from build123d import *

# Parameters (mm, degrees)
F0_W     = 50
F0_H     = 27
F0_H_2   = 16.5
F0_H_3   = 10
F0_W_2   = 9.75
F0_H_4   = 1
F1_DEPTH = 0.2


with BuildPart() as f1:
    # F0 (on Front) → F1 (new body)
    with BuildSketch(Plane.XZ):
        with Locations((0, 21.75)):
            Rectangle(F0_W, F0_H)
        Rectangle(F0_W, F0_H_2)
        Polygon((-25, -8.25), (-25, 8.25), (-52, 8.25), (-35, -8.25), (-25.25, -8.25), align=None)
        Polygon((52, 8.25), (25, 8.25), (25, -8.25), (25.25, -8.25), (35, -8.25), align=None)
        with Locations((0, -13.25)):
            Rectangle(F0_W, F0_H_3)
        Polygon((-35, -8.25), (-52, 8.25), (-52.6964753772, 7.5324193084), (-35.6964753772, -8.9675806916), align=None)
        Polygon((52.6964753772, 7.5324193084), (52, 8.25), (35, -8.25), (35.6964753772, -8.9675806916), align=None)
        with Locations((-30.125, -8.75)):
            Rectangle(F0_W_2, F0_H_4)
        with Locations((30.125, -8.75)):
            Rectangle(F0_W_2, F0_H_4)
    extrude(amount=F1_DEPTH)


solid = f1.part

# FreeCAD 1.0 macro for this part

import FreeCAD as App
import Part
import Sketcher
Q = App.Units.Quantity

doc = App.newDocument("Part")
body = doc.addObject("PartDesign::Body", "Body")

sketch1 = body.newObject("Sketcher::SketchObject", "Sketch")
sketch1.AttachmentSupport = (doc.getObject("XZ_Plane"), [""])
sketch1.MapMode = "FlatFace"
sketch1.addGeometry(Part.LineSegment(App.Vector(-25, 35.25, 0), App.Vector(-25, 8.25, 0)), False)
sketch1.addGeometry(Part.LineSegment(App.Vector(-25, 8.25, 0), App.Vector(-52, 8.25, 0)), False)
sketch1.addGeometry(Part.LineSegment(App.Vector(-52, 8.25, 0), App.Vector(-52.7, 7.53, 0)), False)
sketch1.addGeometry(Part.LineSegment(App.Vector(-52.7, 7.53, 0), App.Vector(-35.7, -8.97, 0)), False)
sketch1.addGeometry(Part.LineSegment(App.Vector(-35.7, -8.97, 0), App.Vector(-35, -8.25, 0)), False)
sketch1.addGeometry(Part.LineSegment(App.Vector(-35, -8.25, 0), App.Vector(-35, -9.25, 0)), False)
sketch1.addGeometry(Part.LineSegment(App.Vector(-35, -9.25, 0), App.Vector(-25.25, -9.25, 0)), False)
sketch1.addGeometry(Part.LineSegment(App.Vector(-25.25, -9.25, 0), App.Vector(-25.25, -8.25, 0)), False)
sketch1.addGeometry(Part.LineSegment(App.Vector(-25.25, -8.25, 0), App.Vector(-25, -8.25, 0)), False)
sketch1.addGeometry(Part.LineSegment(App.Vector(-25, -8.25, 0), App.Vector(-25, -18.25, 0)), False)
sketch1.addGeometry(Part.LineSegment(App.Vector(-25, -18.25, 0), App.Vector(25, -18.25, 0)), False)
sketch1.addGeometry(Part.LineSegment(App.Vector(25, -18.25, 0), App.Vector(25, -8.25, 0)), False)
sketch1.addGeometry(Part.LineSegment(App.Vector(25, -8.25, 0), App.Vector(25.25, -8.25, 0)), False)
sketch1.addGeometry(Part.LineSegment(App.Vector(25.25, -8.25, 0), App.Vector(25.25, -9.25, 0)), False)
sketch1.addGeometry(Part.LineSegment(App.Vector(25.25, -9.25, 0), App.Vector(35, -9.25, 0)), False)
sketch1.addGeometry(Part.LineSegment(App.Vector(35, -9.25, 0), App.Vector(35, -8.25, 0)), False)
sketch1.addGeometry(Part.LineSegment(App.Vector(35, -8.25, 0), App.Vector(35.7, -8.97, 0)), False)
sketch1.addGeometry(Part.LineSegment(App.Vector(35.7, -8.97, 0), App.Vector(52.7, 7.53, 0)), False)
sketch1.addGeometry(Part.LineSegment(App.Vector(52.7, 7.53, 0), App.Vector(52, 8.25, 0)), False)
sketch1.addGeometry(Part.LineSegment(App.Vector(52, 8.25, 0), App.Vector(25, 8.25, 0)), False)
sketch1.addGeometry(Part.LineSegment(App.Vector(25, 8.25, 0), App.Vector(25, 35.25, 0)), False)
sketch1.addGeometry(Part.LineSegment(App.Vector(25, 35.25, 0), App.Vector(-25, 35.25, 0)), False)
sketch1.addConstraint(Sketcher.Constraint("Coincident", 0, 2, 1, 1))
sketch1.addConstraint(Sketcher.Constraint("Coincident", 1, 2, 2, 1))
sketch1.addConstraint(Sketcher.Constraint("Coincident", 2, 2, 3, 1))
sketch1.addConstraint(Sketcher.Constraint("Coincident", 3, 2, 4, 1))
sketch1.addConstraint(Sketcher.Constraint("Coincident", 4, 2, 5, 1))
sketch1.addConstraint(Sketcher.Constraint("Coincident", 5, 2, 6, 1))
sketch1.addConstraint(Sketcher.Constraint("Coincident", 6, 2, 7, 1))
sketch1.addConstraint(Sketcher.Constraint("Coincident", 7, 2, 8, 1))
sketch1.addConstraint(Sketcher.Constraint("Coincident", 8, 2, 9, 1))
sketch1.addConstraint(Sketcher.Constraint("Coincident", 9, 2, 10, 1))
sketch1.addConstraint(Sketcher.Constraint("Coincident", 10, 2, 11, 1))
sketch1.addConstraint(Sketcher.Constraint("Coincident", 11, 2, 12, 1))
sketch1.addConstraint(Sketcher.Constraint("Coincident", 12, 2, 13, 1))
sketch1.addConstraint(Sketcher.Constraint("Coincident", 13, 2, 14, 1))
sketch1.addConstraint(Sketcher.Constraint("Coincident", 14, 2, 15, 1))
sketch1.addConstraint(Sketcher.Constraint("Coincident", 15, 2, 16, 1))
sketch1.addConstraint(Sketcher.Constraint("Coincident", 16, 2, 17, 1))
sketch1.addConstraint(Sketcher.Constraint("Coincident", 17, 2, 18, 1))
sketch1.addConstraint(Sketcher.Constraint("Coincident", 18, 2, 19, 1))
sketch1.addConstraint(Sketcher.Constraint("Coincident", 19, 2, 20, 1))
sketch1.addConstraint(Sketcher.Constraint("Coincident", 20, 2, 21, 1))
sketch1.addConstraint(Sketcher.Constraint("Coincident", 21, 2, 0, 1))
sketch1.addConstraint(Sketcher.Constraint("Vertical", 0))
sketch1.addConstraint(Sketcher.Constraint("Horizontal", 1))
sketch1.addConstraint(Sketcher.Constraint("Vertical", 5))
sketch1.addConstraint(Sketcher.Constraint("Horizontal", 6))
sketch1.addConstraint(Sketcher.Constraint("Vertical", 7))
sketch1.addConstraint(Sketcher.Constraint("Horizontal", 8))
sketch1.addConstraint(Sketcher.Constraint("Vertical", 9))
sketch1.addConstraint(Sketcher.Constraint("Horizontal", 10))
sketch1.addConstraint(Sketcher.Constraint("Vertical", 11))
sketch1.addConstraint(Sketcher.Constraint("Horizontal", 12))
sketch1.addConstraint(Sketcher.Constraint("Vertical", 13))
sketch1.addConstraint(Sketcher.Constraint("Horizontal", 14))
sketch1.addConstraint(Sketcher.Constraint("Vertical", 15))
sketch1.addConstraint(Sketcher.Constraint("Horizontal", 19))
sketch1.addConstraint(Sketcher.Constraint("Vertical", 20))
sketch1.addConstraint(Sketcher.Constraint("Horizontal", 21))
sketch1.addConstraint(Sketcher.Constraint("Symmetric", 0, 2, 11, 2, -1, 1))
sketch1.addConstraint(Sketcher.Constraint("Symmetric", 8, 2, 19, 2, -1, 1))
sketch1.addConstraint(Sketcher.Constraint("Symmetric", 8, 2, 11, 2, -2))
sketch1.addConstraint(Sketcher.Constraint("Symmetric", 6, 2, 13, 2, -2))
sketch1.addConstraint(Sketcher.Constraint("Symmetric", 4, 2, 15, 2, -2))
sketch1.addConstraint(Sketcher.Constraint("Symmetric", 3, 2, 16, 2, -2))
sketch1.addConstraint(Sketcher.Constraint("Symmetric", 2, 2, 17, 2, -2))
sketch1.addConstraint(Sketcher.Constraint("Perpendicular", 2, 3))
sketch1.addConstraint(Sketcher.Constraint("Perpendicular", 3, 4))
sketch1.addConstraint(Sketcher.Constraint("Perpendicular", 17, 18))
sketch1.addConstraint(Sketcher.Constraint("Horizontal", 4, 2, 7, 2))
sketch1.addConstraint(Sketcher.Constraint("Equal", 19, 0))
sketch1.addConstraint(Sketcher.Constraint("Equal", 2, 4))
sketch1.addConstraint(Sketcher.Constraint("DistanceX", 1, 2, 1, 1, Q("27 mm")))
sketch1.addConstraint(Sketcher.Constraint("DistanceX", 10, 1, 10, 2, Q("50 mm")))
sketch1.addConstraint(Sketcher.Constraint("DistanceY", 5, 2, 5, 1, Q("1 mm")))
sketch1.addConstraint(Sketcher.Constraint("DistanceY", 9, 2, 9, 1, Q("10 mm")))
sketch1.addConstraint(Sketcher.Constraint("Distance", 2, Q("1 mm")))
sketch1.addConstraint(Sketcher.Constraint("DistanceX", 4, 2, -1, 1, Q("35 mm")))
sketch1.addConstraint(Sketcher.Constraint("DistanceX", 6, 1, 6, 2, Q("9.75 mm")))
sketch1.addConstraint(Sketcher.Constraint("DistanceY", 3, 2, 2, 2, Q("16.5 mm")))
pad1 = body.newObject("PartDesign::Pad", "Pad")
pad1.Profile = sketch1
pad1.Length = 0.2

doc.recompute()
